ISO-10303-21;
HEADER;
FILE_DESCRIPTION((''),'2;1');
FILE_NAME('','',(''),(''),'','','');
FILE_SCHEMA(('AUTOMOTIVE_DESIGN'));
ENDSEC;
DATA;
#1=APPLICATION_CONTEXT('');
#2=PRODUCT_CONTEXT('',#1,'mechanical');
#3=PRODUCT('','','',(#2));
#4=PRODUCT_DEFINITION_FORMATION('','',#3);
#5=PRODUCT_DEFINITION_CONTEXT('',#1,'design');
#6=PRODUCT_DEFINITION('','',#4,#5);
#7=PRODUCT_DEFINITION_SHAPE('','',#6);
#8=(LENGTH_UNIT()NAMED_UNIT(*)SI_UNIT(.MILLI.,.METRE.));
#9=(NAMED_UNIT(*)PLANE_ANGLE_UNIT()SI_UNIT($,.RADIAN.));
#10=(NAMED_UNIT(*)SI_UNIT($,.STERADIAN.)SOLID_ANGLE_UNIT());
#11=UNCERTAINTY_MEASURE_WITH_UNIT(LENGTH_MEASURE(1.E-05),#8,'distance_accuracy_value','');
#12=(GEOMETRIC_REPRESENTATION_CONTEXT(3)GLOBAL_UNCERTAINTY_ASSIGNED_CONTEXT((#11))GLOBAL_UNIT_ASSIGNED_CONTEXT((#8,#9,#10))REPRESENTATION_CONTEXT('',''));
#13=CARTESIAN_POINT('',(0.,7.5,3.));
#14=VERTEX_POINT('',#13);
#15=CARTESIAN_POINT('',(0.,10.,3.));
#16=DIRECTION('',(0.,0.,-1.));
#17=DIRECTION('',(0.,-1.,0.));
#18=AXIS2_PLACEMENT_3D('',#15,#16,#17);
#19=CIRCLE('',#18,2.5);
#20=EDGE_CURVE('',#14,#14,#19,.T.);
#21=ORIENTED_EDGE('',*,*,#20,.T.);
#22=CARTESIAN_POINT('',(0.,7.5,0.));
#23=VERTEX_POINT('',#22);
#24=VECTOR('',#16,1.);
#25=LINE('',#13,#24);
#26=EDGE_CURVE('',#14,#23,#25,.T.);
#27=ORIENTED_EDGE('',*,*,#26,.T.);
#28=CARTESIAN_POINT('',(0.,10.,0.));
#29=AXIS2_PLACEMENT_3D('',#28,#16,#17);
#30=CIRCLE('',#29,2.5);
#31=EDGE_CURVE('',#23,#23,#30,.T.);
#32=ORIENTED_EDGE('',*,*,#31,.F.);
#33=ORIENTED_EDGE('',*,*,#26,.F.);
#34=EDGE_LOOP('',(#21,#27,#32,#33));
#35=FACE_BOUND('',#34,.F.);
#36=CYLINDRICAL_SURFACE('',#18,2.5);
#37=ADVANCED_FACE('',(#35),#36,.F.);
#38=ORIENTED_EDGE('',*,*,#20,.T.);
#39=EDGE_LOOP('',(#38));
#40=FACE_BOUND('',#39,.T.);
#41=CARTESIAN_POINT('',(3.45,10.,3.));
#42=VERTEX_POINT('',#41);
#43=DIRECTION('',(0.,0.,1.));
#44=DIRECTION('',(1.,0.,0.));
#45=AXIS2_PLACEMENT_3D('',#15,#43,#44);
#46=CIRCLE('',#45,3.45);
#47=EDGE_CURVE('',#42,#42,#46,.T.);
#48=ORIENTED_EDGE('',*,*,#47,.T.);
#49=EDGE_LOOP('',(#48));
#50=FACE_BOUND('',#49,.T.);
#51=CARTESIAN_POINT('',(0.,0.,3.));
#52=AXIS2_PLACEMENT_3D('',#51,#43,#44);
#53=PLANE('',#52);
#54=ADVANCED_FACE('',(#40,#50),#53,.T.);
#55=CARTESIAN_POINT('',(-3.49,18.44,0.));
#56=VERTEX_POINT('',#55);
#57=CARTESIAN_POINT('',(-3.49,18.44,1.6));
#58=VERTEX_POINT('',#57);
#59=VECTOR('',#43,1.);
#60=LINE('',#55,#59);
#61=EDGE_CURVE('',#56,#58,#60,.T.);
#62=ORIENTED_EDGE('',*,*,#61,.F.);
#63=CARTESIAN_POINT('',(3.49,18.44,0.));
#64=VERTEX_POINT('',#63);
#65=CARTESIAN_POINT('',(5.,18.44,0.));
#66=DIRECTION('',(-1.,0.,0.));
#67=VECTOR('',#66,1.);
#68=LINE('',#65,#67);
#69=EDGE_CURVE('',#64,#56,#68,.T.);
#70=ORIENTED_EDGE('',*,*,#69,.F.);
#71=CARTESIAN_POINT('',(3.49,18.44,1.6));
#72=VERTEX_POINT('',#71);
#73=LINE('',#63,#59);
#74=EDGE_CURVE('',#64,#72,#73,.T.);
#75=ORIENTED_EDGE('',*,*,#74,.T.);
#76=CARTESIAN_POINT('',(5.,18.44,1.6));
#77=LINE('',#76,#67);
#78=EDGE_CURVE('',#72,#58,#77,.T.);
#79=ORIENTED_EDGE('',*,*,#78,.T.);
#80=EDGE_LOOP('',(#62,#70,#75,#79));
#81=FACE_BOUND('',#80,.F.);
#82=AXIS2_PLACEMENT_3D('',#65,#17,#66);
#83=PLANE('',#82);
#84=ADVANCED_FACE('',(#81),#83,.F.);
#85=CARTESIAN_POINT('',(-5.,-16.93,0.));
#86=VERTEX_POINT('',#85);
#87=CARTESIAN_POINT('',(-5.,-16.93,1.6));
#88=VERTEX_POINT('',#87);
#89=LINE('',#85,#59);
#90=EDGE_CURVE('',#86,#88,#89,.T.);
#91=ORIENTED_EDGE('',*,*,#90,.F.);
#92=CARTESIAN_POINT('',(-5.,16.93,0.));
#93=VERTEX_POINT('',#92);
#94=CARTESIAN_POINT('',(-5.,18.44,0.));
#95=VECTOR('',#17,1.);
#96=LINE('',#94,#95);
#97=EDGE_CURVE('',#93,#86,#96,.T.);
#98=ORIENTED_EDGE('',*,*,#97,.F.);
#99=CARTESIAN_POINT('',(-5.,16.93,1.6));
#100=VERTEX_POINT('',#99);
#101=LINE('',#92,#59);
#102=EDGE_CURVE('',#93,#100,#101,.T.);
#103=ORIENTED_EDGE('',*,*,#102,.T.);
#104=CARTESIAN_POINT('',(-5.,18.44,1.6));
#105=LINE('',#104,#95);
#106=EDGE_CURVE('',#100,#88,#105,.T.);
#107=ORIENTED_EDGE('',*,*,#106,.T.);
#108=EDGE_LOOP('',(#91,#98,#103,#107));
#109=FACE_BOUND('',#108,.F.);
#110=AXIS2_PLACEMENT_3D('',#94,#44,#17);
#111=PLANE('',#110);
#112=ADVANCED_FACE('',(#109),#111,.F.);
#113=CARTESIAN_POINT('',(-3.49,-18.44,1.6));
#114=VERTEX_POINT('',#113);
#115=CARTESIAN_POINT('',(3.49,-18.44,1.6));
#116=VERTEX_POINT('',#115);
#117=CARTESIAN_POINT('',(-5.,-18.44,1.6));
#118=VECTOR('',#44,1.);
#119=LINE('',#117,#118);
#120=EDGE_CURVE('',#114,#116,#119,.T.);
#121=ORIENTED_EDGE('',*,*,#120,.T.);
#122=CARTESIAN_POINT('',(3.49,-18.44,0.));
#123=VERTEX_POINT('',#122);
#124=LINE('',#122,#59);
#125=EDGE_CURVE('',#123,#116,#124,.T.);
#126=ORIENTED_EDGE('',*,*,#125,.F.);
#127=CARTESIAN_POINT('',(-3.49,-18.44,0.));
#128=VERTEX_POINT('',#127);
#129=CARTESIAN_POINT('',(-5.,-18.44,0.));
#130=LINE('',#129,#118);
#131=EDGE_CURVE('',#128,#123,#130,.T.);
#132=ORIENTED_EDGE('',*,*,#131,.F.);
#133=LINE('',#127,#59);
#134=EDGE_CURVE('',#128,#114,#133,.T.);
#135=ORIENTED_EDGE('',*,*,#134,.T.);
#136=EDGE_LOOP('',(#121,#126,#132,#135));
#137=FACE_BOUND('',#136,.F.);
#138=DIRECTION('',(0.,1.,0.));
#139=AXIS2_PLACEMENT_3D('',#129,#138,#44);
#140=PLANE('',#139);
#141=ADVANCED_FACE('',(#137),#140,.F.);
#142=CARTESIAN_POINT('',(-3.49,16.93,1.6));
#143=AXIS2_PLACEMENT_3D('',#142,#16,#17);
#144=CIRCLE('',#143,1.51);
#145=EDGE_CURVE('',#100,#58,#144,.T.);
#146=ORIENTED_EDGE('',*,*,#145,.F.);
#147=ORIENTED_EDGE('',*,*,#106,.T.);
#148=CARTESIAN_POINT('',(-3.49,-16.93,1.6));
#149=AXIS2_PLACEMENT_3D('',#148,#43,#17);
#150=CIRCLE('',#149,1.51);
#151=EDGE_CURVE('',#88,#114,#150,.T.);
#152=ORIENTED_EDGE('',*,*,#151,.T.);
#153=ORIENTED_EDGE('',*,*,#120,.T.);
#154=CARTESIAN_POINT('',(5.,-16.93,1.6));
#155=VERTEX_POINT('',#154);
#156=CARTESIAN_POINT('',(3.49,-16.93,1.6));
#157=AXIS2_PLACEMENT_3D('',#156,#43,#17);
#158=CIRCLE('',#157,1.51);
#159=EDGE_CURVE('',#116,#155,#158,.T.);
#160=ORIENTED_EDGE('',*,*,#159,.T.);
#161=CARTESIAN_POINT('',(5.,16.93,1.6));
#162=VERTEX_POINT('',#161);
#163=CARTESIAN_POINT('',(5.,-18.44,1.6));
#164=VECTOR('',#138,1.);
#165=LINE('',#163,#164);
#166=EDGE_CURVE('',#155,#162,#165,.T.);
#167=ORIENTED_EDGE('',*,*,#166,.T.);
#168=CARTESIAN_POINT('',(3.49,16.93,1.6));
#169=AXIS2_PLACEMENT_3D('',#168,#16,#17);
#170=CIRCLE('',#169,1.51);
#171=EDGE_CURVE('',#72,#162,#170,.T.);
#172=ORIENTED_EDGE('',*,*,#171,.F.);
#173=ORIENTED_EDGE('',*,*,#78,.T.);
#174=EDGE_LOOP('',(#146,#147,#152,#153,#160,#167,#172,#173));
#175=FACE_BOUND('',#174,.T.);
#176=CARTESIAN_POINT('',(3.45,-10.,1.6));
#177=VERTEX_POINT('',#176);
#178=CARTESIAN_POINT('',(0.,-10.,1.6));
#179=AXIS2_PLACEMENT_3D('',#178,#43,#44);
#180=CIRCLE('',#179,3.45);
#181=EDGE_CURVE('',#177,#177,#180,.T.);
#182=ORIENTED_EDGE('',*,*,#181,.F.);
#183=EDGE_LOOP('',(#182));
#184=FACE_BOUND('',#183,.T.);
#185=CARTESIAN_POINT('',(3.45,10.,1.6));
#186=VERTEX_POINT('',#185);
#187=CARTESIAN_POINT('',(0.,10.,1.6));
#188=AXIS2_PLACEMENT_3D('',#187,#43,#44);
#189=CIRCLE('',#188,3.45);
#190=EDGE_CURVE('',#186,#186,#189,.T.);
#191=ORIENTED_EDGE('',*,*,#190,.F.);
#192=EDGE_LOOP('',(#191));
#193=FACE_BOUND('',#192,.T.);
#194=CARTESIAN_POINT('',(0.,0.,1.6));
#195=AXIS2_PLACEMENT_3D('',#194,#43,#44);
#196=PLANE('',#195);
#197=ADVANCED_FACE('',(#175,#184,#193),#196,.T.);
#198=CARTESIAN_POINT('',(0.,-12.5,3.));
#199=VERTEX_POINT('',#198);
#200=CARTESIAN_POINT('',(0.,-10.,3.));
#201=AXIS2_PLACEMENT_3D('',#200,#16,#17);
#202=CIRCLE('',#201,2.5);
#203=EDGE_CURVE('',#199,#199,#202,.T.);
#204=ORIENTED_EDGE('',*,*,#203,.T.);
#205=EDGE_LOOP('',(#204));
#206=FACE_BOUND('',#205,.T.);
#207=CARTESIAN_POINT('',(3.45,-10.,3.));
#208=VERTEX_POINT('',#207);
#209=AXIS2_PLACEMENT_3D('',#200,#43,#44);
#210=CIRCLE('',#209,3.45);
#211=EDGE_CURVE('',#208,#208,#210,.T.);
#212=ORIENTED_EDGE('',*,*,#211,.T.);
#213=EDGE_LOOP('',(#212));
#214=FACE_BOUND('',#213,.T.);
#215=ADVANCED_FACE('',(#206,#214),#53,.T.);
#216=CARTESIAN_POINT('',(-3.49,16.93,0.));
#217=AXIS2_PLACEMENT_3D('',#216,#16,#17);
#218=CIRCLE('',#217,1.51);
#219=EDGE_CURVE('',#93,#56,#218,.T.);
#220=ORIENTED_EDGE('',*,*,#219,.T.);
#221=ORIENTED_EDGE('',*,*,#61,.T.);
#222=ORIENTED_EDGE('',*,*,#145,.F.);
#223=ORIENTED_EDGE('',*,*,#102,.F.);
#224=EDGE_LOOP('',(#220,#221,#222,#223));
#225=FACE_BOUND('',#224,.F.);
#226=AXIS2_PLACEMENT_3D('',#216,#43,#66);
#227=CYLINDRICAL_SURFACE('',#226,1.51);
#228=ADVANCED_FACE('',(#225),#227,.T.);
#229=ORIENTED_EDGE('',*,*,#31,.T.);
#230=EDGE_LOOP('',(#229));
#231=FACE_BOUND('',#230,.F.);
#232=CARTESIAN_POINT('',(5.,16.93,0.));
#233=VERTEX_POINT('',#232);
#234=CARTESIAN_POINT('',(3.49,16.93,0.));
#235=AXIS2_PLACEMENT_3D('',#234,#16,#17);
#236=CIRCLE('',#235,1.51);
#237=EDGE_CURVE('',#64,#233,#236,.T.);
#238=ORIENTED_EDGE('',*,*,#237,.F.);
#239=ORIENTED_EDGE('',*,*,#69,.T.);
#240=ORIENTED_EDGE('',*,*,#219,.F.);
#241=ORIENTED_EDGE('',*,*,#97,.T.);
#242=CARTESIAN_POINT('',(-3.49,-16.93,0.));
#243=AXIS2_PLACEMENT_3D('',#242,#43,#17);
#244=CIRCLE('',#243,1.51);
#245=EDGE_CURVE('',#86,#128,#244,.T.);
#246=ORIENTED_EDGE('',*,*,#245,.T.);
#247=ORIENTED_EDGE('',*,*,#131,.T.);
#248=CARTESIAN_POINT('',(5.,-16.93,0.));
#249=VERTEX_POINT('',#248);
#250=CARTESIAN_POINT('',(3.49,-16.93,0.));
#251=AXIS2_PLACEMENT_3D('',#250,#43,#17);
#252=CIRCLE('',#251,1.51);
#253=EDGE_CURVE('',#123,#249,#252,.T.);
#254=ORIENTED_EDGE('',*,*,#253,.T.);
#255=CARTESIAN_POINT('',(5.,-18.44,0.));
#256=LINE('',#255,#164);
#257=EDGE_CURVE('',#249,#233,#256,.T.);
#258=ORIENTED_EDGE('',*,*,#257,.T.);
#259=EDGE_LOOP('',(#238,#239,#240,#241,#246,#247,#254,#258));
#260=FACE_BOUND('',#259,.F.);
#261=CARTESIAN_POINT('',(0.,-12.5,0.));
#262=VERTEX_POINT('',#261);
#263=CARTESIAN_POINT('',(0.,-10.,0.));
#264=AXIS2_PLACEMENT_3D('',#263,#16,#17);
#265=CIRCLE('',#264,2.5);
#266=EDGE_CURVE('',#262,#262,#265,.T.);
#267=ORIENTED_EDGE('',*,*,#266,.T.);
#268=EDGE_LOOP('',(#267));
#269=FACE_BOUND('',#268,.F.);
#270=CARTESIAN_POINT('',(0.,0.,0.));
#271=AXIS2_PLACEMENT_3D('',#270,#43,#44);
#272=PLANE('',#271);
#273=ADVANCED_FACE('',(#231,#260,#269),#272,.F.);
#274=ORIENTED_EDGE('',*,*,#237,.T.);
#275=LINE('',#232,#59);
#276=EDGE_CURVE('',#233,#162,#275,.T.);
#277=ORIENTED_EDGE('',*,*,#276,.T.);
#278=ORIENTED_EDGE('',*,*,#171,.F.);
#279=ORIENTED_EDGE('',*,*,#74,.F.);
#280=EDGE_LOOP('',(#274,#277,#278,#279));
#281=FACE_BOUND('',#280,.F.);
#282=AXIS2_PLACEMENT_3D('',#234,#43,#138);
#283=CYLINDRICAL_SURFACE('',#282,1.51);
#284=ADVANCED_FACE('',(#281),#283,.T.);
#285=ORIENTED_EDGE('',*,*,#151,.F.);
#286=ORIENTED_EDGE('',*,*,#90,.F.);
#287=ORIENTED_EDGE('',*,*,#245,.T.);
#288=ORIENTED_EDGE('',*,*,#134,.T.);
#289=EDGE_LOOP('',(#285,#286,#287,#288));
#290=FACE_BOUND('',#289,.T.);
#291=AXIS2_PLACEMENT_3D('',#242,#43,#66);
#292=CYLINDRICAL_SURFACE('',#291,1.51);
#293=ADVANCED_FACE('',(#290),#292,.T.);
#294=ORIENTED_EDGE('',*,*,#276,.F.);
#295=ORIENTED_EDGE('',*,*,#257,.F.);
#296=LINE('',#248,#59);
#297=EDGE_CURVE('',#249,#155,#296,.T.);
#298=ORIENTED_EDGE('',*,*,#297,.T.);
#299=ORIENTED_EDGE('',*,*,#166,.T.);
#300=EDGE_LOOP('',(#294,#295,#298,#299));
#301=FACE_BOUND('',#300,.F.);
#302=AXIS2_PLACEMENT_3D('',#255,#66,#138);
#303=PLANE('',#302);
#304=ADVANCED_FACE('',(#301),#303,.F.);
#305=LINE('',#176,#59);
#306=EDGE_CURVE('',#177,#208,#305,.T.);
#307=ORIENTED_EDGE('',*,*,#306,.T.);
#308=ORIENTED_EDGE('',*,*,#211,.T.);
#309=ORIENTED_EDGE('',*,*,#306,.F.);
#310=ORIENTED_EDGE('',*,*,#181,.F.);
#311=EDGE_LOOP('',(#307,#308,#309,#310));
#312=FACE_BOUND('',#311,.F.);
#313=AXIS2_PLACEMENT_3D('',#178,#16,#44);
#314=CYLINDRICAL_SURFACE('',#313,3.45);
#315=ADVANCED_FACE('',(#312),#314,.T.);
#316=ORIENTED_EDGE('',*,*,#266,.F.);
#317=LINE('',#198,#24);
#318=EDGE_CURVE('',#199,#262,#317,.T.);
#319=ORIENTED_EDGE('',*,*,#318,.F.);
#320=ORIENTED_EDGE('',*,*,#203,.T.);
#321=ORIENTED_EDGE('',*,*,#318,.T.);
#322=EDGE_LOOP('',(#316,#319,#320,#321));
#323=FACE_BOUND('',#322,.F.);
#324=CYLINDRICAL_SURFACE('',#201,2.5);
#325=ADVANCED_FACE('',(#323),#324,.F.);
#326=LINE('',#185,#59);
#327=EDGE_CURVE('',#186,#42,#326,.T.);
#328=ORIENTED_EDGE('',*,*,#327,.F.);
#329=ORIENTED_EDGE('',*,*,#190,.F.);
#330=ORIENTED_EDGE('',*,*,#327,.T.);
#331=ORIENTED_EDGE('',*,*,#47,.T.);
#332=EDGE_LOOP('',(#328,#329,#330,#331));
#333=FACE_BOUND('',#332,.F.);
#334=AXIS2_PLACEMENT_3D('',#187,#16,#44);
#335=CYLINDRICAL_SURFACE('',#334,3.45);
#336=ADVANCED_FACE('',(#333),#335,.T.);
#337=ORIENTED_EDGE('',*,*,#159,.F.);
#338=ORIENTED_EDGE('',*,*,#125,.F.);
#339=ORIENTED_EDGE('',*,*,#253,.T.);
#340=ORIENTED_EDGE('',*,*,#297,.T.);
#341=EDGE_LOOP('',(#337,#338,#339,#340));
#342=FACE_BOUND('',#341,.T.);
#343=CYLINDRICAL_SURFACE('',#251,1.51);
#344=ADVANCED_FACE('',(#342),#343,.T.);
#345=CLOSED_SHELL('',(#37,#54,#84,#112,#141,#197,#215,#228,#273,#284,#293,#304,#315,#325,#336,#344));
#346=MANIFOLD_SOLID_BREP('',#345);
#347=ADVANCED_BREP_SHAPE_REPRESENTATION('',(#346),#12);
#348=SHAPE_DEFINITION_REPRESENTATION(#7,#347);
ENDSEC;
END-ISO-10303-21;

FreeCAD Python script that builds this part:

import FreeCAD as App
import Part
import Sketcher
from FreeCAD import Vector
Q = App.Units.Quantity


def edges_at(feature, points):
    """Names of the edges that pass closest to the given points."""
    edges = feature.Shape.Edges
    near = lambda p: min(range(len(edges)), key=lambda i: edges[i].distToShape(Part.Vertex(*p))[0])
    return sorted({f"Edge{near(p) + 1}" for p in points})


def add_polygon(sketch, points):
    """Adds a closed chain of lines whose ends are joined by coincident constraints."""
    first, n = sketch.GeometryCount, len(points)
    for a, b in zip(points, points[1:] + points[:1]):
        sketch.addGeometry(Part.LineSegment(App.Vector(*a, 0), App.Vector(*b, 0)), False)
    for i in range(n):
        sketch.addConstraint(Sketcher.Constraint("Coincident", first + i, 2, first + (i + 1) % n, 1))

doc = App.newDocument("Part")
params = doc.addObject("Spreadsheet::Sheet", "Params")
for row, (alias, value) in enumerate([
    ("sketch1_width", "10 mm"),
    ("sketch1_height", "36.88 mm"),
    ("pad1_length", "1.6 mm"),
    ("sketch2_diameter", "6.9 mm"),
    ("pad2_length", "1.4 mm"),
    ("sketch3_diameter", "5 mm"),
    ("hole_diameter", "5 mm"),
    ("fillet_radius", "1.51 mm"),
], start=1):
    params.set(f"A{row}", alias)
    params.set(f"B{row}", "=" + value)
    params.setAlias(f"B{row}", alias)

body = doc.addObject("PartDesign::Body", "Body")

sketch1 = body.newObject("Sketcher::SketchObject", "Sketch")
sketch1.AttachmentSupport = (doc.getObject("XY_Plane"), [""])
sketch1.MapMode = "FlatFace"
add_polygon(sketch1, [(-5, 18), (-5, -18), (5, -18), (5, 18)])
sketch1.addConstraint([
    Sketcher.Constraint("Vertical", 0),
    Sketcher.Constraint("Horizontal", 1),
    Sketcher.Constraint("Vertical", 2),
    Sketcher.Constraint("Horizontal", 3),
    Sketcher.Constraint("Symmetric", 0, 2, 2, 2, -1, 1),
    Sketcher.Constraint("DistanceX", 1, 1, 1, 2, Q("10 mm")),
    Sketcher.Constraint("DistanceY", 0, 2, 0, 1, Q("36.88 mm")),
])
sketch1.setExpression("Constraints[9]", "Params.sketch1_width")
sketch1.setExpression("Constraints[10]", "Params.sketch1_height")
pad1 = body.newObject("PartDesign::Pad", "Pad")
pad1.Profile = sketch1
pad1.setExpression("Length", "Params.pad1_length")

sketch2 = body.newObject("Sketcher::SketchObject", "Sketch001")
sketch2.AttachmentSupport = (doc.getObject("XY_Plane"), [""])
sketch2.MapMode = "FlatFace"
sketch2.AttachmentOffset = App.Placement(Vector(0, 0, 1.6), App.Rotation())
sketch2.addGeometry([
    Part.Circle(Vector(0, 10, 0), Vector(0, 0, 1), 3.5),
    Part.Circle(Vector(0, -10, 0), Vector(0, 0, 1), 3.5),
], False)
sketch2.addConstraint([
    Sketcher.Constraint("Equal", 0, 1),
    Sketcher.Constraint("Symmetric", 0, 3, 1, 3, -1, 1),
    Sketcher.Constraint("PointOnObject", 0, 3, -2),
    Sketcher.Constraint("Diameter", 0, Q("6.9 mm")),
    Sketcher.Constraint("DistanceY", -1, 1, 0, 3, Q("10 mm")),
])
sketch2.setExpression("Constraints[3]", "Params.sketch2_diameter")
pad2 = body.newObject("PartDesign::Pad", "Pad001")
pad2.Profile = sketch2
pad2.setExpression("Length", "Params.pad2_length")

sketch3 = body.newObject("Sketcher::SketchObject", "Sketch002")
sketch3.AttachmentSupport = (doc.getObject("XY_Plane"), [""])
sketch3.MapMode = "FlatFace"
sketch3.AttachmentOffset = App.Placement(Vector(0, 0, 3), App.Rotation())
sketch3.addGeometry([
    Part.Circle(Vector(0, -10, 0), Vector(0, 0, 1), 2.5),
    Part.Circle(Vector(0, 10, 0), Vector(0, 0, 1), 2.5),
], False)
sketch3.addConstraint([
    Sketcher.Constraint("Equal", 0, 1),
    Sketcher.Constraint("Symmetric", 0, 3, 1, 3, -1, 1),
    Sketcher.Constraint("PointOnObject", 0, 3, -2),
    Sketcher.Constraint("Diameter", 0, Q("5 mm")),
    Sketcher.Constraint("DistanceY", 0, 3, -1, 1, Q("10 mm")),
])
sketch3.setExpression("Constraints[3]", "Params.sketch3_diameter")
doc.recompute()
hole = body.newObject("PartDesign::Hole", "Hole")
hole.Profile = sketch3
hole.ThreadType = "None"
hole.setExpression("Diameter", "Params.hole_diameter")
hole.DepthType = "ThroughAll"
doc.recompute()

fillet = body.newObject("PartDesign::Fillet", "Fillet")
fillet.Base = (hole, edges_at(hole, [
    (5, 18.44, 0.8),
    (-5, 18.44, 0.8),
    (-5, -18.44, 0.8),
    (5, -18.44, 0.8),
]))
fillet.setExpression("Radius", "Params.fillet_radius")

doc.recompute()
